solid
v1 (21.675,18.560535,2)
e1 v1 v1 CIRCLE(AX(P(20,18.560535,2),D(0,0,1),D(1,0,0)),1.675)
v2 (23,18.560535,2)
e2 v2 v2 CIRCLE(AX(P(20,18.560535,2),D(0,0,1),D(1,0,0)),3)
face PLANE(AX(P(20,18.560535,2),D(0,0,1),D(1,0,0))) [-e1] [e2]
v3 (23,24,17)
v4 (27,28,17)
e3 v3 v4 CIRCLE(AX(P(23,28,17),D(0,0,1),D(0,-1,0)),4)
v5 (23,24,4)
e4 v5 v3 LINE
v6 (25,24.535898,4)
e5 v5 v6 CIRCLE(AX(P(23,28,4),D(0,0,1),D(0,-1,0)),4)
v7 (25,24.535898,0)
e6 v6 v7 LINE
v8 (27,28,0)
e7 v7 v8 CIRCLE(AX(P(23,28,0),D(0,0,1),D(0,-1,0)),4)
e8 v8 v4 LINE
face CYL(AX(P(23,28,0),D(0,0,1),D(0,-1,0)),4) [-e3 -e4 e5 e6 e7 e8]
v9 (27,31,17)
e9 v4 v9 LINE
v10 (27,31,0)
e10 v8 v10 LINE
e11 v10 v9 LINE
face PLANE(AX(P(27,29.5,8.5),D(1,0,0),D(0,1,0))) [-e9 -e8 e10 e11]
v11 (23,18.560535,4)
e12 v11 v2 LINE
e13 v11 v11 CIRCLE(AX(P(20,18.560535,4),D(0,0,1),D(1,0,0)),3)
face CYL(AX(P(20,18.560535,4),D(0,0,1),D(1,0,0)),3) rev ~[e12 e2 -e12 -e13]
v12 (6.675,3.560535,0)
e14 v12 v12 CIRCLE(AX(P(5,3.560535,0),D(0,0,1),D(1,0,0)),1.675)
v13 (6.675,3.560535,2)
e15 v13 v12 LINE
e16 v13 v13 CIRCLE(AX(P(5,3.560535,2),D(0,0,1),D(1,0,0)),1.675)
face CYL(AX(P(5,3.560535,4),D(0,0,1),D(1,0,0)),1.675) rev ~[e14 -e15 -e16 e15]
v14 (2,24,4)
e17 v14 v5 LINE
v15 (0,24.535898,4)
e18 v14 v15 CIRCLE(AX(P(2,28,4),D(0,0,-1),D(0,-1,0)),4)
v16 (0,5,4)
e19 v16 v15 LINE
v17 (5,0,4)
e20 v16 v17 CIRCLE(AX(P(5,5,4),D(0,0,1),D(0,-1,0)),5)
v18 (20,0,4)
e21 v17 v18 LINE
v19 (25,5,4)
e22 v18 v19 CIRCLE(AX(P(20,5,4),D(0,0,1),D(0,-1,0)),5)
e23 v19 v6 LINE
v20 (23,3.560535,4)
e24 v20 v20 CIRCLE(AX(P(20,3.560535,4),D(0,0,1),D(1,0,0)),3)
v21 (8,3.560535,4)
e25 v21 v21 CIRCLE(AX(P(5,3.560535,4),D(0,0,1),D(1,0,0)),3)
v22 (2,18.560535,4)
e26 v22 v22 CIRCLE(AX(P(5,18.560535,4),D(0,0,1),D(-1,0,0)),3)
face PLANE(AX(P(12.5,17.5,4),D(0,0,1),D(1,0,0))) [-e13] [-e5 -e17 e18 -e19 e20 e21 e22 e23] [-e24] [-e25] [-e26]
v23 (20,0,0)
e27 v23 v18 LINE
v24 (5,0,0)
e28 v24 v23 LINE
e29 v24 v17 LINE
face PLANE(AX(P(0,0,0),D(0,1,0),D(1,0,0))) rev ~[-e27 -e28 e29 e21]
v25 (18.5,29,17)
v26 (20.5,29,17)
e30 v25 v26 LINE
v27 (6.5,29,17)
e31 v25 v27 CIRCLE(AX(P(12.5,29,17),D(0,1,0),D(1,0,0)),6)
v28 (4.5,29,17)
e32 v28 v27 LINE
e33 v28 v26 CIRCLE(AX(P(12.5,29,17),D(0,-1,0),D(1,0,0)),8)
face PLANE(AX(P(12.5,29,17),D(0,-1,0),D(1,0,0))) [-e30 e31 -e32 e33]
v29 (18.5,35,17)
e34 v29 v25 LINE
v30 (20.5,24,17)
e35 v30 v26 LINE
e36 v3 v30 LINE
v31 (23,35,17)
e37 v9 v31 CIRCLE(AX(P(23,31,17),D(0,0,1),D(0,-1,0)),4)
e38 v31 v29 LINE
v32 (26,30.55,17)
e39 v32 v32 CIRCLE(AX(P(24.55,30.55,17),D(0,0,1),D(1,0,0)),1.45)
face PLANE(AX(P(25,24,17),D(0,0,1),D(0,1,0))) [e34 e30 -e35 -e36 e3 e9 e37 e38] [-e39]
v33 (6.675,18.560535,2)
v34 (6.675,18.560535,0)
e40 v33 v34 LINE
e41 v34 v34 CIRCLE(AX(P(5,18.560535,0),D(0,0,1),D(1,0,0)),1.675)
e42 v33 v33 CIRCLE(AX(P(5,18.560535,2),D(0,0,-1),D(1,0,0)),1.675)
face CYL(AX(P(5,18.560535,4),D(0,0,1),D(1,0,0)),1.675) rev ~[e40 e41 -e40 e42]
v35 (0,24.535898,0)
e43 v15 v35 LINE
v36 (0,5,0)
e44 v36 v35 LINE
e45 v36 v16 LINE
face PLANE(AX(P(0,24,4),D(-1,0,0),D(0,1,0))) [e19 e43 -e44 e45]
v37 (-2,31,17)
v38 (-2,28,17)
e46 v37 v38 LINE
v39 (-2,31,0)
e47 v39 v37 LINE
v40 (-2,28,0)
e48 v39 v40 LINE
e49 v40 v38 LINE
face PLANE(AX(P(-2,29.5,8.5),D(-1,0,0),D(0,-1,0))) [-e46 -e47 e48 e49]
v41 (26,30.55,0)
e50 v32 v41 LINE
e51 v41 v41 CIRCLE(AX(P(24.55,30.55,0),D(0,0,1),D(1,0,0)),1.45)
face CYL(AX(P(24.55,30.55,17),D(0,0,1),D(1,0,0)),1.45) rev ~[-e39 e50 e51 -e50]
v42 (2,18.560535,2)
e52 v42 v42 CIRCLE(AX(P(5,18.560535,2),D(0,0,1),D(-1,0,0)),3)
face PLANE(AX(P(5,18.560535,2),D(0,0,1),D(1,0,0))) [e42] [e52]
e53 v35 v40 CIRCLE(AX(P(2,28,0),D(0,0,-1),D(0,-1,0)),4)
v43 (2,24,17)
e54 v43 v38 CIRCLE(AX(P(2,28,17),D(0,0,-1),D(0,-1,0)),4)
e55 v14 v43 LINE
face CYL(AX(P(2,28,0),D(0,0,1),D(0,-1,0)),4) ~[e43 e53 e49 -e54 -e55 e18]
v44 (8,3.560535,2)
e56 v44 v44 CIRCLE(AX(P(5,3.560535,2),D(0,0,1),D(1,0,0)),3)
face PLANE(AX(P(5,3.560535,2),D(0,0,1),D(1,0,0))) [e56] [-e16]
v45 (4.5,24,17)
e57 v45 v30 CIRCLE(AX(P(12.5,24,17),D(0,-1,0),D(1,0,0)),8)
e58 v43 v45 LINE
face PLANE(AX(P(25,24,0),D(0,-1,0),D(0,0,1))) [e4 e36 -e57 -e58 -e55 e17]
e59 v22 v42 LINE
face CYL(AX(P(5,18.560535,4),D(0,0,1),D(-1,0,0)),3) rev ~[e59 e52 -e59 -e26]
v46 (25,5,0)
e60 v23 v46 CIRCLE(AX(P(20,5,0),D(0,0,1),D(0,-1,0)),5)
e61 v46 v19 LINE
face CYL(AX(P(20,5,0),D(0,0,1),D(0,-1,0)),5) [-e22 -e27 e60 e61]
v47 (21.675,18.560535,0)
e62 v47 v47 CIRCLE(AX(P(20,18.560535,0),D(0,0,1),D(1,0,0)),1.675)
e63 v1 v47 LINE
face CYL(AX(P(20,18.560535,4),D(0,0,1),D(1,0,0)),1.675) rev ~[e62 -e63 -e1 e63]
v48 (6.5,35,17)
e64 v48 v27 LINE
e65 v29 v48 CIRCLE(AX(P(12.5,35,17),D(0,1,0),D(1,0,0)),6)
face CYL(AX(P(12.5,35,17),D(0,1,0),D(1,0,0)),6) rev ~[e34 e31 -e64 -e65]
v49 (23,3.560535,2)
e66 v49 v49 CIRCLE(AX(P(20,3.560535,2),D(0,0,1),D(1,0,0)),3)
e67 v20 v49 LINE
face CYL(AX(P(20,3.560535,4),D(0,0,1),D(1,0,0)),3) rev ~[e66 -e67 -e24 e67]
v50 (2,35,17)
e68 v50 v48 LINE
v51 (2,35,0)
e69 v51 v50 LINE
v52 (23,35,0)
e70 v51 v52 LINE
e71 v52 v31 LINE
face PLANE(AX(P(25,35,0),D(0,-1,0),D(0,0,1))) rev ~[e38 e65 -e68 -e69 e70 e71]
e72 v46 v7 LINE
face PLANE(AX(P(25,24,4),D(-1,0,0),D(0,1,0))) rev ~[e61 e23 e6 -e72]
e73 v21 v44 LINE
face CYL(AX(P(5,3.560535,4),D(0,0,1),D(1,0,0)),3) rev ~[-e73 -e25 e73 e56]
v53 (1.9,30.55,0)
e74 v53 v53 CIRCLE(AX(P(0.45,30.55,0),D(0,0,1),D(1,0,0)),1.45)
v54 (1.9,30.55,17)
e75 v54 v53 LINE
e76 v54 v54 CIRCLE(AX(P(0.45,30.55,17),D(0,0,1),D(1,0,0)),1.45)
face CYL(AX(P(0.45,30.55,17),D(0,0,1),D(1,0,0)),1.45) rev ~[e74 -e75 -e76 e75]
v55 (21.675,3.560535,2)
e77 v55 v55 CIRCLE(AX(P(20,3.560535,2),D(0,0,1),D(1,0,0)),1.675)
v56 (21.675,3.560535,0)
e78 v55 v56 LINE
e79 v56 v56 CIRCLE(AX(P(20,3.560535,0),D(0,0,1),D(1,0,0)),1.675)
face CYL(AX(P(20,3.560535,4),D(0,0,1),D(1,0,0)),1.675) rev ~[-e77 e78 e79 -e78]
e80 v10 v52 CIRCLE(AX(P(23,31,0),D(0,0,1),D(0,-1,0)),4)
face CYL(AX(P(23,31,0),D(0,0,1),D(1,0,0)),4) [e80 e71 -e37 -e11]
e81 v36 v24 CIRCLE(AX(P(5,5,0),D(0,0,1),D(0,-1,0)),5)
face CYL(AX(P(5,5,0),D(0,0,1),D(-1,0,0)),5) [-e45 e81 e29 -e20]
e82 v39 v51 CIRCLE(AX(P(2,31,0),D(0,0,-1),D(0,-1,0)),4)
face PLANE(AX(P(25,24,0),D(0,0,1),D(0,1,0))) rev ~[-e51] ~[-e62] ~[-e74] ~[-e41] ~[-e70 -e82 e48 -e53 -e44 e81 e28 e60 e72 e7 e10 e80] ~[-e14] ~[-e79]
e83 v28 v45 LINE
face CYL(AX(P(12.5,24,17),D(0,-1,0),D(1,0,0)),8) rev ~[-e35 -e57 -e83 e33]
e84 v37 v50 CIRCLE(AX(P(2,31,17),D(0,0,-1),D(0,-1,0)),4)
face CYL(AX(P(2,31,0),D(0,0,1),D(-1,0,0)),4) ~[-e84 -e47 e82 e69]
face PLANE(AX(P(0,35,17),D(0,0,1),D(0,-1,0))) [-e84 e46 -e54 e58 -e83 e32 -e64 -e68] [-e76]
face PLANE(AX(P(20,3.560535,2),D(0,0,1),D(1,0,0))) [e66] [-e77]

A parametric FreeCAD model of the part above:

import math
import FreeCAD as App
import Part
import Sketcher
from FreeCAD import Vector
Q = App.Units.Quantity


def edges_at(feature, points):
    """Names of the edges that pass closest to the given points."""
    edges = feature.Shape.Edges
    near = lambda p: min(range(len(edges)), key=lambda i: edges[i].distToShape(Part.Vertex(*p))[0])
    return sorted({f"Edge{near(p) + 1}" for p in points})


def add_polygon(sketch, points):
    """Adds a closed chain of lines whose ends are joined by coincident constraints."""
    first, n = sketch.GeometryCount, len(points)
    for a, b in zip(points, points[1:] + points[:1]):
        sketch.addGeometry(Part.LineSegment(App.Vector(*a, 0), App.Vector(*b, 0)), False)
    for i in range(n):
        sketch.addConstraint(Sketcher.Constraint("Coincident", first + i, 2, first + (i + 1) % n, 1))

doc = App.newDocument("Part")
body = doc.addObject("PartDesign::Body", "Body")

sketch1 = doc.addObject("Sketcher::SketchObject", "Sketch")
body.addObject(sketch1)
sketch1.AttachmentSupport = (doc.XY_Plane, [""])
sketch1.MapMode = "FlatFace"
add_polygon(sketch1, [(0, 35), (0, 0), (25, 0), (25, 35)])
sketch1.addConstraint([
    Sketcher.Constraint("Vertical", 0),
    Sketcher.Constraint("Horizontal", 1),
    Sketcher.Constraint("Vertical", 2),
    Sketcher.Constraint("Horizontal", 3),
    Sketcher.Constraint("Coincident", 0, 2, -1, 1),
    Sketcher.Constraint("DistanceX", 1, 1, 1, 2, Q("25 mm")),
    Sketcher.Constraint("DistanceY", 0, 2, 0, 1, Q("35 mm")),
])
pad1 = doc.addObject("PartDesign::Pad", "Pad")
body.addObject(pad1)
pad1.Profile = sketch1
pad1.Length = 4

sketch2 = doc.addObject("Sketcher::SketchObject", "Sketch001")
body.addObject(sketch2)
sketch2.AttachmentSupport = (doc.XY_Plane, [""])
sketch2.MapMode = "FlatFace"
sketch2.AttachmentOffset = App.Placement(Vector(0, 0, 4), App.Rotation())
sketch2.addGeometry([
    Part.Circle(Vector(5, 18.6, 0), Vector(0, 0, 1), 1.7),
    Part.Circle(Vector(20, 18.6, 0), Vector(0, 0, 1), 1.7),
    Part.Circle(Vector(20, 3.6, 0), Vector(0, 0, 1), 1.7),
    Part.Circle(Vector(5, 3.6, 0), Vector(0, 0, 1), 1.7),
], False)
sketch2.addConstraint([
    Sketcher.Constraint("Equal", 0, 1),
    Sketcher.Constraint("Equal", 1, 2),
    Sketcher.Constraint("Equal", 2, 3),
    Sketcher.Constraint("Horizontal", 0, 3, 1, 3),
    Sketcher.Constraint("Horizontal", 2, 3, 3, 3),
    Sketcher.Constraint("Vertical", 1, 3, 2, 3),
    Sketcher.Constraint("Vertical", 0, 3, 3, 3),
    Sketcher.Constraint("Diameter", 0, Q("3.35 mm")),
    Sketcher.Constraint("DistanceX", -1, 1, 0, 3, Q("5 mm")),
    Sketcher.Constraint("DistanceX", -1, 1, 1, 3, Q("20 mm")),
    Sketcher.Constraint("DistanceY", 2, 3, 1, 3, Q("15 mm")),
    Sketcher.Constraint("DistanceY", -1, 1, 0, 3, Q("18.560535 mm")),
])
pocket1 = doc.addObject("PartDesign::Pocket", "Pocket")
body.addObject(pocket1)
pocket1.Profile = sketch2
pocket1.Length = 25

sketch3 = doc.addObject("Sketcher::SketchObject", "Sketch002")
body.addObject(sketch3)
sketch3.AttachmentSupport = (doc.XY_Plane, [""])
sketch3.MapMode = "FlatFace"
sketch3.AttachmentOffset = App.Placement(Vector(0, 0, 4), App.Rotation())
add_polygon(sketch3, [(0, 35), (0, 24), (25, 24), (25, 35)])
sketch3.addConstraint([
    Sketcher.Constraint("Vertical", 0),
    Sketcher.Constraint("Horizontal", 1),
    Sketcher.Constraint("Vertical", 2),
    Sketcher.Constraint("Horizontal", 3),
    Sketcher.Constraint("PointOnObject", 0, 2, -2),
    Sketcher.Constraint("DistanceX", 1, 1, 1, 2, Q("25 mm")),
    Sketcher.Constraint("DistanceY", 0, 2, 0, 1, Q("11 mm")),
    Sketcher.Constraint("DistanceY", -1, 1, 0, 2, Q("24 mm")),
])
pad2 = doc.addObject("PartDesign::Pad", "Pad001")
body.addObject(pad2)
pad2.Profile = sketch3
pad2.Length = 13

sketch4 = doc.addObject("Sketcher::SketchObject", "Sketch003")
body.addObject(sketch4)
sketch4.AttachmentSupport = (doc.XZ_Plane, [""])
sketch4.MapMode = "FlatFace"
sketch4.AttachmentOffset = App.Placement(Vector(0, 0, -35), App.Rotation())
sketch4.addGeometry([
    Part.ArcOfCircle(Part.Circle(Vector(12, 17, 0), Vector(0, 0, 1), 6), math.radians(180), math.radians(360)),
    Part.LineSegment(Vector(6, 17, 0), Vector(18, 17, 0)),
], False)
sketch4.addConstraint([
    Sketcher.Constraint("Coincident", 0, 1, 1, 1),
    Sketcher.Constraint("Coincident", 1, 2, 0, 2),
    Sketcher.Constraint("Horizontal", 1),
    Sketcher.Constraint("Radius", 0, Q("6 mm")),
    Sketcher.Constraint("DistanceY", -1, 1, 0, 3, Q("17 mm")),
    Sketcher.Constraint("DistanceY", -1, 1, 0, 1, Q("17 mm")),
    Sketcher.Constraint("DistanceX", -1, 1, 0, 3, Q("12.5 mm")),
])
pocket2 = doc.addObject("PartDesign::Pocket", "Pocket001")
body.addObject(pocket2)
pocket2.Profile = sketch4
pocket2.Length = 6
pocket2.Reversed = True

sketch5 = doc.addObject("Sketcher::SketchObject", "Sketch004")
body.addObject(sketch5)
sketch5.AttachmentSupport = (doc.XZ_Plane, [""])
sketch5.MapMode = "FlatFace"
sketch5.AttachmentOffset = App.Placement(Vector(0, 0, -24), App.Rotation())
sketch5.addGeometry(Part.Circle(Vector(12, 17, 0), Vector(0, 0, 1), 8), False)
sketch5.addConstraint([
    Sketcher.Constraint("Diameter", 0, Q("16 mm")),
    Sketcher.Constraint("DistanceY", -1, 1, 0, 3, Q("17 mm")),
    Sketcher.Constraint("DistanceX", -1, 1, 0, 3, Q("12.5 mm")),
])
pocket3 = doc.addObject("PartDesign::Pocket", "Pocket002")
body.addObject(pocket3)
pocket3.Profile = sketch5
pocket3.Length = 5

sketch6 = doc.addObject("Sketcher::SketchObject", "Sketch005")
body.addObject(sketch6)
sketch6.AttachmentSupport = (doc.XY_Plane, [""])
sketch6.MapMode = "FlatFace"
sketch6.AttachmentOffset = App.Placement(Vector(0, 0, 4), App.Rotation())
sketch6.addGeometry([
    Part.Circle(Vector(5, 18.6, 0), Vector(0, 0, 1), 3),
    Part.Circle(Vector(5, 18.6, 0), Vector(0, 0, 1), 1.7),
    Part.Circle(Vector(20, 18.6, 0), Vector(0, 0, 1), 3),
    Part.Circle(Vector(20, 18.6, 0), Vector(0, 0, 1), 1.7),
    Part.Circle(Vector(20, 3.6, 0), Vector(0, 0, 1), 3),
    Part.Circle(Vector(20, 3.6, 0), Vector(0, 0, 1), 1.7),
    Part.Circle(Vector(5, 3.6, 0), Vector(0, 0, 1), 3),
    Part.Circle(Vector(5, 3.6, 0), Vector(0, 0, 1), 1.7),
], False)
sketch6.addConstraint([
    Sketcher.Constraint("Coincident", 1, 3, 0, 3),
    Sketcher.Constraint("Coincident", 3, 3, 2, 3),
    Sketcher.Constraint("Coincident", 5, 3, 4, 3),
    Sketcher.Constraint("Coincident", 7, 3, 6, 3),
    Sketcher.Constraint("Equal", 0, 2),
    Sketcher.Constraint("Equal", 1, 3),
    Sketcher.Constraint("Equal", 2, 4),
    Sketcher.Constraint("Equal", 3, 5),
    Sketcher.Constraint("Equal", 4, 6),
    Sketcher.Constraint("Equal", 5, 7),
    Sketcher.Constraint("Horizontal", 1, 3, 2, 3),
    Sketcher.Constraint("Horizontal", 5, 3, 6, 3),
    Sketcher.Constraint("Vertical", 3, 3, 4, 3),
    Sketcher.Constraint("Vertical", 1, 3, 6, 3),
    Sketcher.Constraint("Diameter", 0, Q("6 mm")),
    Sketcher.Constraint("Diameter", 1, Q("3.35 mm")),
    Sketcher.Constraint("DistanceX", -1, 1, 0, 3, Q("5 mm")),
    Sketcher.Constraint("DistanceX", -1, 1, 2, 3, Q("20 mm")),
    Sketcher.Constraint("DistanceY", 4, 3, 2, 3, Q("15 mm")),
    Sketcher.Constraint("DistanceY", -1, 1, 0, 3, Q("18.560535 mm")),
])
pocket4 = doc.addObject("PartDesign::Pocket", "Pocket003")
body.addObject(pocket4)
pocket4.Profile = sketch6
pocket4.Length = 2
doc.recompute()

fillet = doc.addObject("PartDesign::Fillet", "Fillet")
body.addObject(fillet)
fillet.Base = (pocket4, edges_at(pocket4, [(0, 0, 2), (25, 0, 2)]))
fillet.Radius = 5

sketch7 = doc.addObject("Sketcher::SketchObject", "Sketch006")
body.addObject(sketch7)
sketch7.AttachmentSupport = (doc.YZ_Plane, [""])
sketch7.MapMode = "FlatFace"
add_polygon(sketch7, [(35, 17), (35, 0), (24, 0), (24, 17)])
sketch7.addConstraint([
    Sketcher.Constraint("Vertical", 0),
    Sketcher.Constraint("Horizontal", 1),
    Sketcher.Constraint("Vertical", 2),
    Sketcher.Constraint("Horizontal", 3),
    Sketcher.Constraint("PointOnObject", 0, 2, -1),
    Sketcher.Constraint("DistanceX", 1, 2, 1, 1, Q("11 mm")),
    Sketcher.Constraint("DistanceY", 0, 2, 0, 1, Q("17 mm")),
    Sketcher.Constraint("DistanceX", -1, 1, 0, 2, Q("35 mm")),
])
pad3 = doc.addObject("PartDesign::Pad", "Pad002")
body.addObject(pad3)
pad3.Profile = sketch7
pad3.Length = 2
pad3.Reversed = True

sketch8 = doc.addObject("Sketcher::SketchObject", "Sketch007")
body.addObject(sketch8)
sketch8.AttachmentSupport = (doc.YZ_Plane, [""])
sketch8.MapMode = "FlatFace"
sketch8.AttachmentOffset = App.Placement(Vector(0, 0, 25), App.Rotation())
add_polygon(sketch8, [(24, 17), (24, 0), (35, 0), (35, 17)])
sketch8.addConstraint([
    Sketcher.Constraint("Vertical", 0),
    Sketcher.Constraint("Horizontal", 1),
    Sketcher.Constraint("Vertical", 2),
    Sketcher.Constraint("Horizontal", 3),
    Sketcher.Constraint("PointOnObject", 0, 2, -1),
    Sketcher.Constraint("DistanceX", 1, 1, 1, 2, Q("11 mm")),
    Sketcher.Constraint("DistanceY", 0, 2, 0, 1, Q("17 mm")),
    Sketcher.Constraint("DistanceX", -1, 1, 0, 2, Q("24 mm")),
])
pad4 = doc.addObject("PartDesign::Pad", "Pad003")
body.addObject(pad4)
pad4.Profile = sketch8
pad4.Length = 2

sketch9 = doc.addObject("Sketcher::SketchObject", "Sketch008")
body.addObject(sketch9)
sketch9.AttachmentSupport = (doc.XY_Plane, [""])
sketch9.MapMode = "FlatFace"
sketch9.AttachmentOffset = App.Placement(Vector(0, 0, 17), App.Rotation())
sketch9.addGeometry([
    Part.Circle(Vector(0.5, 30.6, 0), Vector(0, 0, 1), 1.4),
    Part.Circle(Vector(24.6, 30.6, 0), Vector(0, 0, 1), 1.4),
], False)
sketch9.addConstraint([
    Sketcher.Constraint("Equal", 0, 1),
    Sketcher.Constraint("Horizontal", 0, 3, 1, 3),
    Sketcher.Constraint("Diameter", 0, Q("2.9 mm")),
    Sketcher.Constraint("DistanceX", 0, 3, 1, 3, Q("24.1 mm")),
    Sketcher.Constraint("DistanceX", -1, 1, 0, 3, Q("0.45 mm")),
    Sketcher.Constraint("DistanceY", -1, 1, 0, 3, Q("30.55 mm")),
])
pocket5 = doc.addObject("PartDesign::Pocket", "Pocket004")
body.addObject(pocket5)
pocket5.Profile = sketch9
pocket5.Length = 25
doc.recompute()

fillet2 = doc.addObject("PartDesign::Fillet", "Fillet001")
body.addObject(fillet2)
fillet2.Base = (pocket5, edges_at(pocket5, [
    (-2, 24, 8.5),
    (-2, 35, 8.5),
    (27, 35, 8.5),
    (27, 24, 8.5),
]))
fillet2.Radius = 4

doc.recompute()
